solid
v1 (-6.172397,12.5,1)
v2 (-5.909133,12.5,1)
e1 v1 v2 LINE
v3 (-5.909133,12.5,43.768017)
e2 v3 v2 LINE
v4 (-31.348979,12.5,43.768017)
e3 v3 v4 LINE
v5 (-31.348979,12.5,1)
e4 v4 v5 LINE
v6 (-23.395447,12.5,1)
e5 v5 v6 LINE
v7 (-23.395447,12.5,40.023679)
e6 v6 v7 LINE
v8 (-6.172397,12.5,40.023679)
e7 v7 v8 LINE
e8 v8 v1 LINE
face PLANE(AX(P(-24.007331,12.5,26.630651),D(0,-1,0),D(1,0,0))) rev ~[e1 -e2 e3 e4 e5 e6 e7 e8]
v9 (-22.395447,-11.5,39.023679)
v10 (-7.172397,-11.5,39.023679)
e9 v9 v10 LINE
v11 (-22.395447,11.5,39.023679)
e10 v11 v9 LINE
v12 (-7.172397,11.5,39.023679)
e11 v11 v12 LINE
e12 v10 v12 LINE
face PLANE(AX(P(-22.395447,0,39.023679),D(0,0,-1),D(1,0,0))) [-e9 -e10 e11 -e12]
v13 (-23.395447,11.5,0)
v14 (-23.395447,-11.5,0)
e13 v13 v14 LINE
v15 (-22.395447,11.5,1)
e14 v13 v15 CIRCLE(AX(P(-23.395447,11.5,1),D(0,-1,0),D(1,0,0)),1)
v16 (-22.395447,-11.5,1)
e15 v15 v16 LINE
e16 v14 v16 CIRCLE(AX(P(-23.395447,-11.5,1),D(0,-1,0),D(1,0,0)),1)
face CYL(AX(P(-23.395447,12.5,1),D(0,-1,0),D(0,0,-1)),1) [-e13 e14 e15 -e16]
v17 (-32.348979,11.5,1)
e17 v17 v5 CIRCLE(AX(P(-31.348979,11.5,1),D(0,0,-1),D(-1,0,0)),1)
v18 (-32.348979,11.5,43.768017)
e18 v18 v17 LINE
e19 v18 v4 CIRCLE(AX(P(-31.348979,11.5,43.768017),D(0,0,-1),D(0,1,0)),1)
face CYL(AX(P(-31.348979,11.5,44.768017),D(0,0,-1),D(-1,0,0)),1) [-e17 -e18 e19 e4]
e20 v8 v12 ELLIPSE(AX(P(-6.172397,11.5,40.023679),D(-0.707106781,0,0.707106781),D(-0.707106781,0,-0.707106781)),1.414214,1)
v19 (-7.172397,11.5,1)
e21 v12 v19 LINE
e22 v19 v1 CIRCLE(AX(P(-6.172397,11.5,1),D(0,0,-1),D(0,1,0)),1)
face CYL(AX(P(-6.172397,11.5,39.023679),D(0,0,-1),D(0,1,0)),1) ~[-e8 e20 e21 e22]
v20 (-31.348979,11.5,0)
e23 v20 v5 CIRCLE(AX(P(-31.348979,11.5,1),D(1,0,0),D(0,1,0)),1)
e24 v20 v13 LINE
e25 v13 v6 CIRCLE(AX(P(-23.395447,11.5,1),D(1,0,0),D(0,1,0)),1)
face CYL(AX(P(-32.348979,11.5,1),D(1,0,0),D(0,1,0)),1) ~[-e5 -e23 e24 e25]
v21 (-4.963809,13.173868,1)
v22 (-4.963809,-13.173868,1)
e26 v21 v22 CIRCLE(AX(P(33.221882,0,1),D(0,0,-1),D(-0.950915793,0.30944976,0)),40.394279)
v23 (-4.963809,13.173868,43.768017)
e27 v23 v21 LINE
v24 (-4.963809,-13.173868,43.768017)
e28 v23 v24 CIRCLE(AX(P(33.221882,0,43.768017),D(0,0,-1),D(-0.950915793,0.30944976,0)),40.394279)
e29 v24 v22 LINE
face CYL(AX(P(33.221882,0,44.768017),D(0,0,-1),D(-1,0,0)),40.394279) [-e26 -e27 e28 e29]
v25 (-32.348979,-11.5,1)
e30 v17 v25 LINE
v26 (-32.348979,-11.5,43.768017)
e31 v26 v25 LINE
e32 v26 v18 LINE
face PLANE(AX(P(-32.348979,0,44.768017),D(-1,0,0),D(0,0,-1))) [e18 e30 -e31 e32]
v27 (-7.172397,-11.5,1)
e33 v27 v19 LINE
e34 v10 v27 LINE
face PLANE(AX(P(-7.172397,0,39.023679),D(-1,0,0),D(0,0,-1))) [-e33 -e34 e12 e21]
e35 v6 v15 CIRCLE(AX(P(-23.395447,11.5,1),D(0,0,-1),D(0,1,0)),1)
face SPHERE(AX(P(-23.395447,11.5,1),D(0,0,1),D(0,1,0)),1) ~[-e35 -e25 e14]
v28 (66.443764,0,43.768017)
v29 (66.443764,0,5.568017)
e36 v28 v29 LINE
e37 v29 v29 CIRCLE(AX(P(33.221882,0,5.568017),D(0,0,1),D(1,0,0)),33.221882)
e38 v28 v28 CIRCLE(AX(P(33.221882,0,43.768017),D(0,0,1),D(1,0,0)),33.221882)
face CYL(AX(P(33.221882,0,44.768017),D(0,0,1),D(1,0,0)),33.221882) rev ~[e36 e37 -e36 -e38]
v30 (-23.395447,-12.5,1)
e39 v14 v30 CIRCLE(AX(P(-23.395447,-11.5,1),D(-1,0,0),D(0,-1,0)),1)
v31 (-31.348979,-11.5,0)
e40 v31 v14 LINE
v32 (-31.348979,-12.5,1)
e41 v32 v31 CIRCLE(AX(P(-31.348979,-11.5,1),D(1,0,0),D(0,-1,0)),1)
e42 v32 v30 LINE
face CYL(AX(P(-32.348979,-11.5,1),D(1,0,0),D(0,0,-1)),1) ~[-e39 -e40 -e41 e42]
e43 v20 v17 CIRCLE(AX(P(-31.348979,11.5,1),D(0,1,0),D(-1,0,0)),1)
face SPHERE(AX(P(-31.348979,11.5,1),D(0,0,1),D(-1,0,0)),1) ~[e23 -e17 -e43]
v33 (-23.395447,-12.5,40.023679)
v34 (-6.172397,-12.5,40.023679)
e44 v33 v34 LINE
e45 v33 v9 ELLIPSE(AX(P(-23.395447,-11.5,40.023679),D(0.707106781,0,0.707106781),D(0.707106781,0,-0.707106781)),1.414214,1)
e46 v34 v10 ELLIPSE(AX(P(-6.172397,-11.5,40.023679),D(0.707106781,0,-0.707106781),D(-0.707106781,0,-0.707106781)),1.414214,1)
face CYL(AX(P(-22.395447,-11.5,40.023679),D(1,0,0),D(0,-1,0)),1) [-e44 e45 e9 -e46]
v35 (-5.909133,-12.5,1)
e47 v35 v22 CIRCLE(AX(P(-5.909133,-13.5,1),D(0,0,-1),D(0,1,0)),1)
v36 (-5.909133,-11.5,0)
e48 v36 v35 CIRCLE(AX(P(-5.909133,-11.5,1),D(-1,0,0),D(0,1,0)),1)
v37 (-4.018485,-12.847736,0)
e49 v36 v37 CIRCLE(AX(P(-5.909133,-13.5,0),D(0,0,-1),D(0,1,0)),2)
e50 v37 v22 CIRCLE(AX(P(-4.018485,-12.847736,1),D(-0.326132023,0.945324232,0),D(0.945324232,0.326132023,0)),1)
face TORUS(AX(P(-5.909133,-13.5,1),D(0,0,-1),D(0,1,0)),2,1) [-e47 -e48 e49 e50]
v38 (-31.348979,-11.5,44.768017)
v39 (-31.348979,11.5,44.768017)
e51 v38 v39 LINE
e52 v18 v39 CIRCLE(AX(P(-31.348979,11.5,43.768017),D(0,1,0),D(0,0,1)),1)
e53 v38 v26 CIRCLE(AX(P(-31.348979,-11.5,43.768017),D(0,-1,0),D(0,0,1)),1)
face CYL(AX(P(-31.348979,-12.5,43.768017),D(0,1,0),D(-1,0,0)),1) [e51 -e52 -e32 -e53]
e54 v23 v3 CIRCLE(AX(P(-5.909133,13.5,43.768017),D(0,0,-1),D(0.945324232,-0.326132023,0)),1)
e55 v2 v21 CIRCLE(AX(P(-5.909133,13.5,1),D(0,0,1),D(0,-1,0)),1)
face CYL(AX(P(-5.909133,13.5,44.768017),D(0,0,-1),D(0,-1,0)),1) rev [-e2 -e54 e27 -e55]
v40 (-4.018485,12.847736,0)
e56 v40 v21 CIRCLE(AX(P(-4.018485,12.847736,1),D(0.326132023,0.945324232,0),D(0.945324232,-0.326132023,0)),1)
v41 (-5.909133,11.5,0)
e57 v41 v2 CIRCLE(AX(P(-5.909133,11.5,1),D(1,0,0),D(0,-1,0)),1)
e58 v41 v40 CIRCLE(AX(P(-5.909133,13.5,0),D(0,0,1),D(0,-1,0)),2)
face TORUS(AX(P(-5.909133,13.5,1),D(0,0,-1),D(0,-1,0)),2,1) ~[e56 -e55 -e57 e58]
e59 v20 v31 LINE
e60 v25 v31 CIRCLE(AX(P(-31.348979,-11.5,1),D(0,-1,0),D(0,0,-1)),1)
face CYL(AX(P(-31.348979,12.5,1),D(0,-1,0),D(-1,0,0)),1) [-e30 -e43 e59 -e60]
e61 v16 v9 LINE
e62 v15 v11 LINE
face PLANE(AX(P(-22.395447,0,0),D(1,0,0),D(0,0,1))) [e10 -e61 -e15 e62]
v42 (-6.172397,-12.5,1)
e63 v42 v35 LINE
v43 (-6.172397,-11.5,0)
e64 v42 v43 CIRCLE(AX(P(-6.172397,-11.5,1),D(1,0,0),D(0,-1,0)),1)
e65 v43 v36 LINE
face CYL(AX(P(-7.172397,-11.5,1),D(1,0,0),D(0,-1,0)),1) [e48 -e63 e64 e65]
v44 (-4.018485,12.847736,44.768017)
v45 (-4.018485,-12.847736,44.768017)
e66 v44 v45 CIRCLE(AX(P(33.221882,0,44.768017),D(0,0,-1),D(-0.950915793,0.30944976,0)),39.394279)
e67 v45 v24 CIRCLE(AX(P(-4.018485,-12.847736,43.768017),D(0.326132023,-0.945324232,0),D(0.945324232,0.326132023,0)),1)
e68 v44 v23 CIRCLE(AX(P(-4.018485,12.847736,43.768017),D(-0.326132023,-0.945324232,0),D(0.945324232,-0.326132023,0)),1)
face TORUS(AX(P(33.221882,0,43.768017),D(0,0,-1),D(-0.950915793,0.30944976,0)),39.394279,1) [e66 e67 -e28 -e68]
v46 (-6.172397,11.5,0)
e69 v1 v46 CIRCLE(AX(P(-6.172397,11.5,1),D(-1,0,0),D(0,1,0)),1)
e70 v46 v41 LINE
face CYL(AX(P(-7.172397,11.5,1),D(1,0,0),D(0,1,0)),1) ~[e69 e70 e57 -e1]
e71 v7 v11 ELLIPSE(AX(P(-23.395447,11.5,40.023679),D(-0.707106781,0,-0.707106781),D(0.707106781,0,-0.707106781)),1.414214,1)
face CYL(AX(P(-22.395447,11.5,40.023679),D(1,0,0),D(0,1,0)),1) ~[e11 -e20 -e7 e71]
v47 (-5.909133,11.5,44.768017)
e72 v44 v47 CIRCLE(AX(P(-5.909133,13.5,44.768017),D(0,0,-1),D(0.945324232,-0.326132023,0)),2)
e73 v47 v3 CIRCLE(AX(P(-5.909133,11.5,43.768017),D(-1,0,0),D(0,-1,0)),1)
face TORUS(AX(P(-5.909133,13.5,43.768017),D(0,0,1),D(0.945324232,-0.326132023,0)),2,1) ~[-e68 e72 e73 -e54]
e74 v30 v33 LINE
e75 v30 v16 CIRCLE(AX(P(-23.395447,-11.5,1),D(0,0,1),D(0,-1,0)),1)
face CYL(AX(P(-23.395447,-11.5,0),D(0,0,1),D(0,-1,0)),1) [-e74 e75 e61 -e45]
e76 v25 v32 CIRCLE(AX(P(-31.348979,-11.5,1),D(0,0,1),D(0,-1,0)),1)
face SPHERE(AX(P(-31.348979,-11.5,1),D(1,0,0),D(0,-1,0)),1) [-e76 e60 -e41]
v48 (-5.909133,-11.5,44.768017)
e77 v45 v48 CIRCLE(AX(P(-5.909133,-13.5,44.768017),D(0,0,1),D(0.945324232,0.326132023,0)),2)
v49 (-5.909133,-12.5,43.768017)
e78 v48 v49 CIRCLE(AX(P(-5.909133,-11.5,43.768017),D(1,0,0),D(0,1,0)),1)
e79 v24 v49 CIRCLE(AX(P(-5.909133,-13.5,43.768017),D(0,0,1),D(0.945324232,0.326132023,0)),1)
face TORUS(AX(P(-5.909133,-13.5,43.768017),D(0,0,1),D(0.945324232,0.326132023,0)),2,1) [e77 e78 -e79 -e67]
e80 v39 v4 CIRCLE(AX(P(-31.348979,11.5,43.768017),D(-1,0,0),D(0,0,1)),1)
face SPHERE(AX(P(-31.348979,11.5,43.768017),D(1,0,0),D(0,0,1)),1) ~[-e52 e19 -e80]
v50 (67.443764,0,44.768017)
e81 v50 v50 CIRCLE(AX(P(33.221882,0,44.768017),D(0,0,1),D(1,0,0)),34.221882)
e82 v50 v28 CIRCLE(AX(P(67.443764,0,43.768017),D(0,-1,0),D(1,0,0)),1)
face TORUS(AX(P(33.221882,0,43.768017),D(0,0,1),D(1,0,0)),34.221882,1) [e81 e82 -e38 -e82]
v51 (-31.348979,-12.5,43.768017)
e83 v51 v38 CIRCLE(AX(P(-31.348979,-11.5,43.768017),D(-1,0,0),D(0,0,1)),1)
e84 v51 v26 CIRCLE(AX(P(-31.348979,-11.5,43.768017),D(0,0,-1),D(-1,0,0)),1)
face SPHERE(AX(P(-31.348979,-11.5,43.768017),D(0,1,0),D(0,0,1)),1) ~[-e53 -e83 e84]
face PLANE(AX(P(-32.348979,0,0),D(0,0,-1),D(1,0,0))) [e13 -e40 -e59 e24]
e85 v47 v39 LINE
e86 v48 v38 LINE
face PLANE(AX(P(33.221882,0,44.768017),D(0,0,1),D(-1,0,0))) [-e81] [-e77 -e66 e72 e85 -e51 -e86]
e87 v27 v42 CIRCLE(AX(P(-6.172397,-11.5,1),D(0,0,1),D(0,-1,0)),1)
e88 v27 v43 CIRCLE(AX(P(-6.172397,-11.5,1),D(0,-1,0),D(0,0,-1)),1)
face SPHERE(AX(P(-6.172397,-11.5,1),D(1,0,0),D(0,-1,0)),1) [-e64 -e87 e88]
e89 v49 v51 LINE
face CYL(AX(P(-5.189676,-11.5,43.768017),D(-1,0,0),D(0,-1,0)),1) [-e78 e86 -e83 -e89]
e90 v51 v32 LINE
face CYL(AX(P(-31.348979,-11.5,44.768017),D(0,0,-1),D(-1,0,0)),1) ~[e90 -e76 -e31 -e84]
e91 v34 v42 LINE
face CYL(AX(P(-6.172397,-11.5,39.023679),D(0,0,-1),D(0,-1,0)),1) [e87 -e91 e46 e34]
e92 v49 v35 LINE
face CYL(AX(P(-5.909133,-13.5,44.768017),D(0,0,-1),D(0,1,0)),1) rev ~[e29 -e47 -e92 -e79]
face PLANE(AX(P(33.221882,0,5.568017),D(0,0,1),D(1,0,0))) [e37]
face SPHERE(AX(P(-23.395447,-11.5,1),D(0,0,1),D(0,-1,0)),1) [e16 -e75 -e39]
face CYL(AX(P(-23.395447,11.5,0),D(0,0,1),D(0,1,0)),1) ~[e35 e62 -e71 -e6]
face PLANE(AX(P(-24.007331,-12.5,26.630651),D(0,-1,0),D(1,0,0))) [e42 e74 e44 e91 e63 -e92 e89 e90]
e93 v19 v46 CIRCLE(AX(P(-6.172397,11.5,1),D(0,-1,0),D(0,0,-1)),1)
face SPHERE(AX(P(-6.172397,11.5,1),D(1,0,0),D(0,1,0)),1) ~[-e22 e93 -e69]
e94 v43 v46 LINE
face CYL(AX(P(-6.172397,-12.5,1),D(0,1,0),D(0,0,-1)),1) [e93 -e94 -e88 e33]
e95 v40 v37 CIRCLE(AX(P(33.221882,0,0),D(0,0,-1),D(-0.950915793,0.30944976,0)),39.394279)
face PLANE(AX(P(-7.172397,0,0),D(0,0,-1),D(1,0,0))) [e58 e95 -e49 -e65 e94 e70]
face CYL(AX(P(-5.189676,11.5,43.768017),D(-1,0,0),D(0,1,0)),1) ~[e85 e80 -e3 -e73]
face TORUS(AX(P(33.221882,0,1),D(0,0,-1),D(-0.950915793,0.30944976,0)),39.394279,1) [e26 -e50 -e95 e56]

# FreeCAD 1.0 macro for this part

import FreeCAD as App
import Part
import Sketcher
from FreeCAD import Vector


def edges_at(feature, points):
    """Names of the edges that pass closest to the given points."""
    edges = feature.Shape.Edges
    near = lambda p: min(range(len(edges)), key=lambda i: edges[i].distToShape(Part.Vertex(*p))[0])
    return sorted({f"Edge{near(p) + 1}" for p in points})


def add_polygon(sketch, points):
    """Adds a closed chain of lines whose ends are joined by coincident constraints."""
    first, n = sketch.GeometryCount, len(points)
    for a, b in zip(points, points[1:] + points[:1]):
        sketch.addGeometry(Part.LineSegment(App.Vector(*a, 0), App.Vector(*b, 0)), False)
    for i in range(n):
        sketch.addConstraint(Sketcher.Constraint("Coincident", first + i, 2, first + (i + 1) % n, 1))

doc = App.newDocument("Part")
body = doc.addObject("PartDesign::Body", "Body")

sketch1 = body.newObject("Sketcher::SketchObject", "Sketch")
sketch1.AttachmentSupport = (doc.getObject("XZ_Plane"), [""])
sketch1.MapMode = "FlatFace"
add_polygon(sketch1, [(33.221882, 44.768017), (-7.172397, 44.768017), (-7.172397, 0), (33.221882, 0)])
sketch1.addGeometry(Part.LineSegment(Vector(33.221882, 44.768017, 0), Vector(33.221882, 0, 0)), True)
sketch1.addConstraint([
    Sketcher.Constraint("Horizontal", 0),
    Sketcher.Constraint("Vertical", 1),
    Sketcher.Constraint("Horizontal", 2),
    Sketcher.Constraint("Vertical", 3),
    Sketcher.Constraint("Vertical", 4),
    Sketcher.Constraint("Coincident", 4, 1, 3, 2),
    Sketcher.Constraint("PointOnObject", 1, 2, -1),
    Sketcher.Constraint("PointOnObject", 4, 2, -1),
    Sketcher.Constraint("DistanceX", 0, 2, 0, 1, 40.394279),
    Sketcher.Constraint("DistanceY", 1, 2, 1, 1, 44.768017),
    Sketcher.Constraint("DistanceX", -1, 1, 2, 2, 33.221882),
])
revolution = body.newObject("PartDesign::Revolution", "Revolution")
revolution.Profile = sketch1
revolution.ReferenceAxis = (sketch1, ["Axis0"])
revolution.Angle = 360

sketch2 = body.newObject("Sketcher::SketchObject", "Sketch001")
sketch2.AttachmentSupport = (doc.getObject("XZ_Plane"), [""])
sketch2.MapMode = "FlatFace"
add_polygon(sketch2, [(-32.348979, 44.768017), (-32.348979, 0), (-22.395447, 0), (-22.395447, 39.023679), (-7.172397, 39.023679), (-7.172397, 0), (33.221882, 0), (33.221882, 44.768017)])
sketch2.addConstraint([
    Sketcher.Constraint("Vertical", 0),
    Sketcher.Constraint("Horizontal", 1),
    Sketcher.Constraint("Vertical", 2),
    Sketcher.Constraint("Horizontal", 3),
    Sketcher.Constraint("Vertical", 4),
    Sketcher.Constraint("Horizontal", 5),
    Sketcher.Constraint("Vertical", 6),
    Sketcher.Constraint("Horizontal", 7),
    Sketcher.Constraint("PointOnObject", 0, 2, -1),
    Sketcher.Constraint("PointOnObject", 4, 2, -1),
    Sketcher.Constraint("DistanceX", 3, 1, 3, 2, 15.22305),
    Sketcher.Constraint("DistanceX", 5, 1, 5, 2, 40.394279),
    Sketcher.Constraint("DistanceX", 7, 2, 7, 1, 65.570861),
    Sketcher.Constraint("DistanceY", 2, 1, 2, 2, 39.023679),
    Sketcher.Constraint("DistanceY", 0, 2, 0, 1, 44.768017),
    Sketcher.Constraint("DistanceX", 0, 2, -1, 1, 32.348979),
])
pad1 = body.newObject("PartDesign::Pad", "Pad")
pad1.Profile = sketch2
pad1.Length = 25
pad1.Midplane = True

sketch3 = body.newObject("Sketcher::SketchObject", "Sketch002")
sketch3.AttachmentSupport = (doc.getObject("XY_Plane"), [""])
sketch3.MapMode = "FlatFace"
sketch3.AttachmentOffset = App.Placement(Vector(0, 0, 44.768017), App.Rotation())
sketch3.addGeometry(Part.Circle(Vector(33.221882, 0, 0), Vector(0, 0, 1), 33.221882), False)
sketch3.addConstraint([
    Sketcher.Constraint("PointOnObject", 0, 3, -1),
    Sketcher.Constraint("Diameter", 0, 66.443764),
    Sketcher.Constraint("DistanceX", -1, 1, 0, 3, 33.221882),
])
pocket1 = body.newObject("PartDesign::Pocket", "Pocket")
pocket1.Profile = sketch3
pocket1.Length = 39.2
doc.recompute()

fillet = body.newObject("PartDesign::Fillet", "Fillet")
fillet.Base = (pocket1, edges_at(pocket1, [
    (73.616, 0, 44.768),
    (0, 0, 44.768),
    (-18.769, 12.5, 44.768),
    (-32.349, 0, 44.768),
    (-18.769, -12.5, 44.768),
    (-5.19, -12.5, 22.384),
    (-6.181, -12.5, 0),
    (-7.172, -12.5, 19.512),
    (-14.784, -12.5, 39.024),
    (-22.395, -12.5, 19.512),
    (-27.372, -12.5, 0),
    (-32.349, -12.5, 22.384),
    (-32.349, 12.5, 22.384),
    (-32.349, 0, 0),
    (-5.19, 12.5, 22.384),
    (-6.181, 12.5, 0),
    (-7.172, 12.5, 19.512),
    (-14.784, 12.5, 39.024),
    (-22.395, 12.5, 19.512),
    (-27.372, 12.5, 0),
    (73.616, 0, 0),
    (-7.172, 0, 0),
    (-22.395, 0, 0),
]))
fillet.Radius = 1

doc.recompute()
